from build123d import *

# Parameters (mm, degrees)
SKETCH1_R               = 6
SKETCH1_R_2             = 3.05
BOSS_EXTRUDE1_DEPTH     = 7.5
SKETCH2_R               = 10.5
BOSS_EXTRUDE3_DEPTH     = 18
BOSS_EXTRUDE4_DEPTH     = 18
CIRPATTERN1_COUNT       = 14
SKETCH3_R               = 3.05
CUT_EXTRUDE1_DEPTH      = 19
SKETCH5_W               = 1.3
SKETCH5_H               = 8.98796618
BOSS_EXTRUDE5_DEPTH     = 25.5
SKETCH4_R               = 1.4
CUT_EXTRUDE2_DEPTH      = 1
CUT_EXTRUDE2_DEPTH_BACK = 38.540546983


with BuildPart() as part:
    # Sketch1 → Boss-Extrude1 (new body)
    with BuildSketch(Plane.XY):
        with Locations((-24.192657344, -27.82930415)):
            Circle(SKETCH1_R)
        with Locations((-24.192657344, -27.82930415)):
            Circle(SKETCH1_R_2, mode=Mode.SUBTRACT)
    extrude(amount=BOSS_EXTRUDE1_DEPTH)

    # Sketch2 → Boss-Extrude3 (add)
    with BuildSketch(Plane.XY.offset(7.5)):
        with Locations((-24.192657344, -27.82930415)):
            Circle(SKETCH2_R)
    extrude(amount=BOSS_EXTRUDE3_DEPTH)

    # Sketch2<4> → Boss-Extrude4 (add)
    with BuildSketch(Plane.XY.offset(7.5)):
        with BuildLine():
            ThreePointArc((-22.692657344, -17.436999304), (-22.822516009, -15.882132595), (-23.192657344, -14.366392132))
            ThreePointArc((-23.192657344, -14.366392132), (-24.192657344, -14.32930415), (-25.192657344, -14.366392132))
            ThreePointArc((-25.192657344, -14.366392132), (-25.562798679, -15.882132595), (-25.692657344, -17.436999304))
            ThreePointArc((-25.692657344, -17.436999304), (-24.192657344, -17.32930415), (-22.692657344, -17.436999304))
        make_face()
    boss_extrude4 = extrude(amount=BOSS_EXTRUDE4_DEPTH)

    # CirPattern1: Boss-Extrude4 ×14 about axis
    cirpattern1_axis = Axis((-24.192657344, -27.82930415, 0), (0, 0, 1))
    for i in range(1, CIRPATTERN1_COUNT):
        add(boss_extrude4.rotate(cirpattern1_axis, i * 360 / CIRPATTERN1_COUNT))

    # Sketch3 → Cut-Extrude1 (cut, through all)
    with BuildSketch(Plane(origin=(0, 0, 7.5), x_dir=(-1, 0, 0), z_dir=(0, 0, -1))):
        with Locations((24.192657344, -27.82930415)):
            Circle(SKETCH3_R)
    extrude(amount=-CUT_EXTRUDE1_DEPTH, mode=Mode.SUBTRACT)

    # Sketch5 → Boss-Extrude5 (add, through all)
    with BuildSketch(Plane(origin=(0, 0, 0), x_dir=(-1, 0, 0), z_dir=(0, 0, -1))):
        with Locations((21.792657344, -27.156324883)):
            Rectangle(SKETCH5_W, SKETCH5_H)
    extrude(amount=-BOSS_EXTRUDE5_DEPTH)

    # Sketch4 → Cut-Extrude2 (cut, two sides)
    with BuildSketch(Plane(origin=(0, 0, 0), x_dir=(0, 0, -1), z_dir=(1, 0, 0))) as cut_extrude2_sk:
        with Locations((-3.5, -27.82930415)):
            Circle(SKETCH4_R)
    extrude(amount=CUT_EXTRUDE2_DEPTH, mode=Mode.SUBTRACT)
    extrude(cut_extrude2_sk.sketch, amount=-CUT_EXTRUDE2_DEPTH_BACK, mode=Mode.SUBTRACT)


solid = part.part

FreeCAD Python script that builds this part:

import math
import FreeCAD as App
import Part
import Sketcher


def add_polygon(sketch, points):
    """Adds a closed chain of lines whose ends are joined by coincident constraints."""
    first, n = sketch.GeometryCount, len(points)
    for a, b in zip(points, points[1:] + points[:1]):
        sketch.addGeometry(Part.LineSegment(App.Vector(*a, 0), App.Vector(*b, 0)), False)
    for i in range(n):
        sketch.addConstraint(Sketcher.Constraint("Coincident", first + i, 2, first + (i + 1) % n, 1))

doc = App.newDocument("Part")
body = doc.addObject("PartDesign::Body", "Body")

# Sketch on XY plane
sketch1 = doc.addObject("Sketcher::SketchObject", "Sketch")
body.addObject(sketch1)
sketch1.AttachmentSupport = (doc.XY_Plane, [""])
sketch1.MapMode = "FlatFace"
sketch1.addGeometry(Part.Circle(App.Vector(-24.192657, -27.829304, 0), App.Vector(0, 0, 1), 6), False)
sketch1.addGeometry(Part.Circle(App.Vector(-24.192657, -27.829304, 0), App.Vector(0, 0, 1), 3.05), False)
sketch1.addConstraint(Sketcher.Constraint("Coincident", 1, 3, 0, 3))
sketch1.addConstraint(Sketcher.Constraint("Diameter", 0, 12.0))
sketch1.addConstraint(Sketcher.Constraint("Diameter", 1, 6.1))
sketch1.addConstraint(Sketcher.Constraint("DistanceX", 0, 3, -1, 1, 24.192657))
sketch1.addConstraint(Sketcher.Constraint("DistanceY", 0, 3, -1, 1, 27.829304))
pad1 = doc.addObject("PartDesign::Pad", "Pad")
body.addObject(pad1)
pad1.Profile = sketch1
pad1.Length = 7.5

# Sketch on XY plane
sketch2 = doc.addObject("Sketcher::SketchObject", "Sketch001")
body.addObject(sketch2)
sketch2.AttachmentSupport = (doc.XY_Plane, [""])
sketch2.MapMode = "FlatFace"
sketch2.AttachmentOffset = App.Placement(App.Vector(0, 0, 7.5), App.Rotation())
sketch2.addGeometry(Part.Circle(App.Vector(-24.192657, -27.829304, 0), App.Vector(0, 0, 1), 10.5), False)
sketch2.addConstraint(Sketcher.Constraint("Diameter", 0, 21.0))
sketch2.addConstraint(Sketcher.Constraint("DistanceX", 0, 3, -1, 1, 24.192657))
sketch2.addConstraint(Sketcher.Constraint("DistanceY", 0, 3, -1, 1, 27.829304))
pad2 = doc.addObject("PartDesign::Pad", "Pad001")
body.addObject(pad2)
pad2.Profile = sketch2
pad2.Length = 18

# Sketch on XY plane
sketch3 = doc.addObject("Sketcher::SketchObject", "Sketch002")
body.addObject(sketch3)
sketch3.AttachmentSupport = (doc.XY_Plane, [""])
sketch3.MapMode = "FlatFace"
sketch3.AttachmentOffset = App.Placement(App.Vector(0, 0, 7.5), App.Rotation())
sketch3.addGeometry(Part.ArcOfCircle(Part.Circle(App.Vector(-32.692521, -17.489307, 0), App.Vector(0, 0, 1), 10), math.radians(0.299704), math.radians(18.197382)), False)
sketch3.addGeometry(Part.ArcOfCircle(Part.Circle(App.Vector(-24.192657, -27.829304, 0), App.Vector(0, 0, 1), 13.5), math.radians(85.751977), math.radians(94.248023)), False)
sketch3.addGeometry(Part.ArcOfCircle(Part.Circle(App.Vector(-15.692794, -17.489307, 0), App.Vector(0, 0, 1), 10), math.radians(161.802618), math.radians(179.700296)), False)
sketch3.addGeometry(Part.ArcOfCircle(Part.Circle(App.Vector(-24.192657, -27.829304, 0), App.Vector(0, 0, 1), 10.5), math.radians(81.786789), math.radians(98.213211)), False)
sketch3.addConstraint(Sketcher.Constraint("Coincident", 0, 2, 1, 1))
sketch3.addConstraint(Sketcher.Constraint("Coincident", 1, 2, 2, 1))
sketch3.addConstraint(Sketcher.Constraint("Coincident", 2, 2, 3, 2))
sketch3.addConstraint(Sketcher.Constraint("Coincident", 3, 1, 0, 1))
sketch3.addConstraint(Sketcher.Constraint("Coincident", 3, 3, 1, 3))
sketch3.addConstraint(Sketcher.Constraint("Equal", 0, 2))
sketch3.addConstraint(Sketcher.Constraint("Horizontal", 0, 3, 2, 3))
sketch3.addConstraint(Sketcher.Constraint("Horizontal", 0, 2, 1, 2))
sketch3.addConstraint(Sketcher.Constraint("Radius", 0, 10.0))
sketch3.addConstraint(Sketcher.Constraint("Radius", 1, 13.5))
sketch3.addConstraint(Sketcher.Constraint("Radius", 3, 10.5))
sketch3.addConstraint(Sketcher.Constraint("DistanceX", 3, 3, 0, 2, 1.0))
sketch3.addConstraint(Sketcher.Constraint("DistanceX", 2, 2, 3, 1, 3.0))
sketch3.addConstraint(Sketcher.Constraint("DistanceY", 2, 2, -1, 1, 17.436999))
sketch3.addConstraint(Sketcher.Constraint("DistanceX", 0, 3, -1, 1, 32.692521))
pad3 = doc.addObject("PartDesign::Pad", "Pad002")
body.addObject(pad3)
pad3.Profile = sketch3
pad3.Length = 18
doc.recompute()

datumline = doc.addObject("PartDesign::Line", "DatumLine")
body.addObject(datumline)
datumline.Placement = App.Placement(App.Vector(-24.192657, -27.829304, 0), App.Rotation(App.Vector(0, 0, 1), App.Vector(0, 0, 1)))
polarpattern = doc.addObject("PartDesign::PolarPattern", "PolarPattern")
body.addObject(polarpattern)
polarpattern.Originals = [pad3]
polarpattern.Axis = (datumline, [""])
polarpattern.Angle = 360
polarpattern.Occurrences = 14
body.Tip = polarpattern

# Sketch on XY plane
sketch4 = doc.addObject("Sketcher::SketchObject", "Sketch003")
body.addObject(sketch4)
sketch4.AttachmentSupport = (doc.XY_Plane, [""])
sketch4.MapMode = "FlatFace"
sketch4.AttachmentOffset = App.Placement(App.Vector(0, 0, 7.5), App.Rotation())
sketch4.addGeometry(Part.Circle(App.Vector(-24.192657, -27.829304, 0), App.Vector(0, 0, 1), 3.05), False)
sketch4.addConstraint(Sketcher.Constraint("Diameter", 0, 6.1))
sketch4.addConstraint(Sketcher.Constraint("DistanceX", 0, 3, -1, 1, 24.192657))
sketch4.addConstraint(Sketcher.Constraint("DistanceY", 0, 3, -1, 1, 27.829304))
pocket1 = doc.addObject("PartDesign::Pocket", "Pocket")
body.addObject(pocket1)
pocket1.Profile = sketch4
pocket1.Type = "ThroughAll"
pocket1.Reversed = True

# Sketch on XY plane
sketch5 = doc.addObject("Sketcher::SketchObject", "Sketch004")
body.addObject(sketch5)
sketch5.AttachmentSupport = (doc.XY_Plane, [""])
sketch5.MapMode = "FlatFace"
add_polygon(sketch5, [(-21.142657, -22.662342), (-21.142657, -31.650308), (-22.442657, -31.650308), (-22.442657, -22.662342)])  # lines 0-3
sketch5.addConstraint(Sketcher.Constraint("Vertical", 0))
sketch5.addConstraint(Sketcher.Constraint("Horizontal", 1))
sketch5.addConstraint(Sketcher.Constraint("Vertical", 2))
sketch5.addConstraint(Sketcher.Constraint("Horizontal", 3))
sketch5.addConstraint(Sketcher.Constraint("DistanceX", 1, 2, 1, 1, 1.3))
sketch5.addConstraint(Sketcher.Constraint("DistanceY", 0, 2, 0, 1, 8.987966))
sketch5.addConstraint(Sketcher.Constraint("DistanceY", 2, 2, -1, 1, 22.662342))
sketch5.addConstraint(Sketcher.Constraint("DistanceX", 0, 2, -1, 1, 21.142657))
pad4 = doc.addObject("PartDesign::Pad", "Pad003")
body.addObject(pad4)
pad4.Profile = sketch5
pad4.Length = 25.5

# Sketch on YZ plane
sketch6 = doc.addObject("Sketcher::SketchObject", "Sketch005")
body.addObject(sketch6)
sketch6.AttachmentSupport = (doc.YZ_Plane, [""])
sketch6.MapMode = "FlatFace"
sketch6.addGeometry(Part.Circle(App.Vector(-27.829304, 3.5, 0), App.Vector(0, 0, 1), 1.4), False)
sketch6.addConstraint(Sketcher.Constraint("Diameter", 0, 2.8))
sketch6.addConstraint(Sketcher.Constraint("DistanceY", -1, 1, 0, 3, 3.5))
sketch6.addConstraint(Sketcher.Constraint("DistanceX", 0, 3, -1, 1, 27.829304))
pocket2 = doc.addObject("PartDesign::Pocket", "Pocket001")
body.addObject(pocket2)
pocket2.Profile = sketch6
pocket2.Type = "ThroughAll"
pocket2.Midplane = True

doc.recompute()
